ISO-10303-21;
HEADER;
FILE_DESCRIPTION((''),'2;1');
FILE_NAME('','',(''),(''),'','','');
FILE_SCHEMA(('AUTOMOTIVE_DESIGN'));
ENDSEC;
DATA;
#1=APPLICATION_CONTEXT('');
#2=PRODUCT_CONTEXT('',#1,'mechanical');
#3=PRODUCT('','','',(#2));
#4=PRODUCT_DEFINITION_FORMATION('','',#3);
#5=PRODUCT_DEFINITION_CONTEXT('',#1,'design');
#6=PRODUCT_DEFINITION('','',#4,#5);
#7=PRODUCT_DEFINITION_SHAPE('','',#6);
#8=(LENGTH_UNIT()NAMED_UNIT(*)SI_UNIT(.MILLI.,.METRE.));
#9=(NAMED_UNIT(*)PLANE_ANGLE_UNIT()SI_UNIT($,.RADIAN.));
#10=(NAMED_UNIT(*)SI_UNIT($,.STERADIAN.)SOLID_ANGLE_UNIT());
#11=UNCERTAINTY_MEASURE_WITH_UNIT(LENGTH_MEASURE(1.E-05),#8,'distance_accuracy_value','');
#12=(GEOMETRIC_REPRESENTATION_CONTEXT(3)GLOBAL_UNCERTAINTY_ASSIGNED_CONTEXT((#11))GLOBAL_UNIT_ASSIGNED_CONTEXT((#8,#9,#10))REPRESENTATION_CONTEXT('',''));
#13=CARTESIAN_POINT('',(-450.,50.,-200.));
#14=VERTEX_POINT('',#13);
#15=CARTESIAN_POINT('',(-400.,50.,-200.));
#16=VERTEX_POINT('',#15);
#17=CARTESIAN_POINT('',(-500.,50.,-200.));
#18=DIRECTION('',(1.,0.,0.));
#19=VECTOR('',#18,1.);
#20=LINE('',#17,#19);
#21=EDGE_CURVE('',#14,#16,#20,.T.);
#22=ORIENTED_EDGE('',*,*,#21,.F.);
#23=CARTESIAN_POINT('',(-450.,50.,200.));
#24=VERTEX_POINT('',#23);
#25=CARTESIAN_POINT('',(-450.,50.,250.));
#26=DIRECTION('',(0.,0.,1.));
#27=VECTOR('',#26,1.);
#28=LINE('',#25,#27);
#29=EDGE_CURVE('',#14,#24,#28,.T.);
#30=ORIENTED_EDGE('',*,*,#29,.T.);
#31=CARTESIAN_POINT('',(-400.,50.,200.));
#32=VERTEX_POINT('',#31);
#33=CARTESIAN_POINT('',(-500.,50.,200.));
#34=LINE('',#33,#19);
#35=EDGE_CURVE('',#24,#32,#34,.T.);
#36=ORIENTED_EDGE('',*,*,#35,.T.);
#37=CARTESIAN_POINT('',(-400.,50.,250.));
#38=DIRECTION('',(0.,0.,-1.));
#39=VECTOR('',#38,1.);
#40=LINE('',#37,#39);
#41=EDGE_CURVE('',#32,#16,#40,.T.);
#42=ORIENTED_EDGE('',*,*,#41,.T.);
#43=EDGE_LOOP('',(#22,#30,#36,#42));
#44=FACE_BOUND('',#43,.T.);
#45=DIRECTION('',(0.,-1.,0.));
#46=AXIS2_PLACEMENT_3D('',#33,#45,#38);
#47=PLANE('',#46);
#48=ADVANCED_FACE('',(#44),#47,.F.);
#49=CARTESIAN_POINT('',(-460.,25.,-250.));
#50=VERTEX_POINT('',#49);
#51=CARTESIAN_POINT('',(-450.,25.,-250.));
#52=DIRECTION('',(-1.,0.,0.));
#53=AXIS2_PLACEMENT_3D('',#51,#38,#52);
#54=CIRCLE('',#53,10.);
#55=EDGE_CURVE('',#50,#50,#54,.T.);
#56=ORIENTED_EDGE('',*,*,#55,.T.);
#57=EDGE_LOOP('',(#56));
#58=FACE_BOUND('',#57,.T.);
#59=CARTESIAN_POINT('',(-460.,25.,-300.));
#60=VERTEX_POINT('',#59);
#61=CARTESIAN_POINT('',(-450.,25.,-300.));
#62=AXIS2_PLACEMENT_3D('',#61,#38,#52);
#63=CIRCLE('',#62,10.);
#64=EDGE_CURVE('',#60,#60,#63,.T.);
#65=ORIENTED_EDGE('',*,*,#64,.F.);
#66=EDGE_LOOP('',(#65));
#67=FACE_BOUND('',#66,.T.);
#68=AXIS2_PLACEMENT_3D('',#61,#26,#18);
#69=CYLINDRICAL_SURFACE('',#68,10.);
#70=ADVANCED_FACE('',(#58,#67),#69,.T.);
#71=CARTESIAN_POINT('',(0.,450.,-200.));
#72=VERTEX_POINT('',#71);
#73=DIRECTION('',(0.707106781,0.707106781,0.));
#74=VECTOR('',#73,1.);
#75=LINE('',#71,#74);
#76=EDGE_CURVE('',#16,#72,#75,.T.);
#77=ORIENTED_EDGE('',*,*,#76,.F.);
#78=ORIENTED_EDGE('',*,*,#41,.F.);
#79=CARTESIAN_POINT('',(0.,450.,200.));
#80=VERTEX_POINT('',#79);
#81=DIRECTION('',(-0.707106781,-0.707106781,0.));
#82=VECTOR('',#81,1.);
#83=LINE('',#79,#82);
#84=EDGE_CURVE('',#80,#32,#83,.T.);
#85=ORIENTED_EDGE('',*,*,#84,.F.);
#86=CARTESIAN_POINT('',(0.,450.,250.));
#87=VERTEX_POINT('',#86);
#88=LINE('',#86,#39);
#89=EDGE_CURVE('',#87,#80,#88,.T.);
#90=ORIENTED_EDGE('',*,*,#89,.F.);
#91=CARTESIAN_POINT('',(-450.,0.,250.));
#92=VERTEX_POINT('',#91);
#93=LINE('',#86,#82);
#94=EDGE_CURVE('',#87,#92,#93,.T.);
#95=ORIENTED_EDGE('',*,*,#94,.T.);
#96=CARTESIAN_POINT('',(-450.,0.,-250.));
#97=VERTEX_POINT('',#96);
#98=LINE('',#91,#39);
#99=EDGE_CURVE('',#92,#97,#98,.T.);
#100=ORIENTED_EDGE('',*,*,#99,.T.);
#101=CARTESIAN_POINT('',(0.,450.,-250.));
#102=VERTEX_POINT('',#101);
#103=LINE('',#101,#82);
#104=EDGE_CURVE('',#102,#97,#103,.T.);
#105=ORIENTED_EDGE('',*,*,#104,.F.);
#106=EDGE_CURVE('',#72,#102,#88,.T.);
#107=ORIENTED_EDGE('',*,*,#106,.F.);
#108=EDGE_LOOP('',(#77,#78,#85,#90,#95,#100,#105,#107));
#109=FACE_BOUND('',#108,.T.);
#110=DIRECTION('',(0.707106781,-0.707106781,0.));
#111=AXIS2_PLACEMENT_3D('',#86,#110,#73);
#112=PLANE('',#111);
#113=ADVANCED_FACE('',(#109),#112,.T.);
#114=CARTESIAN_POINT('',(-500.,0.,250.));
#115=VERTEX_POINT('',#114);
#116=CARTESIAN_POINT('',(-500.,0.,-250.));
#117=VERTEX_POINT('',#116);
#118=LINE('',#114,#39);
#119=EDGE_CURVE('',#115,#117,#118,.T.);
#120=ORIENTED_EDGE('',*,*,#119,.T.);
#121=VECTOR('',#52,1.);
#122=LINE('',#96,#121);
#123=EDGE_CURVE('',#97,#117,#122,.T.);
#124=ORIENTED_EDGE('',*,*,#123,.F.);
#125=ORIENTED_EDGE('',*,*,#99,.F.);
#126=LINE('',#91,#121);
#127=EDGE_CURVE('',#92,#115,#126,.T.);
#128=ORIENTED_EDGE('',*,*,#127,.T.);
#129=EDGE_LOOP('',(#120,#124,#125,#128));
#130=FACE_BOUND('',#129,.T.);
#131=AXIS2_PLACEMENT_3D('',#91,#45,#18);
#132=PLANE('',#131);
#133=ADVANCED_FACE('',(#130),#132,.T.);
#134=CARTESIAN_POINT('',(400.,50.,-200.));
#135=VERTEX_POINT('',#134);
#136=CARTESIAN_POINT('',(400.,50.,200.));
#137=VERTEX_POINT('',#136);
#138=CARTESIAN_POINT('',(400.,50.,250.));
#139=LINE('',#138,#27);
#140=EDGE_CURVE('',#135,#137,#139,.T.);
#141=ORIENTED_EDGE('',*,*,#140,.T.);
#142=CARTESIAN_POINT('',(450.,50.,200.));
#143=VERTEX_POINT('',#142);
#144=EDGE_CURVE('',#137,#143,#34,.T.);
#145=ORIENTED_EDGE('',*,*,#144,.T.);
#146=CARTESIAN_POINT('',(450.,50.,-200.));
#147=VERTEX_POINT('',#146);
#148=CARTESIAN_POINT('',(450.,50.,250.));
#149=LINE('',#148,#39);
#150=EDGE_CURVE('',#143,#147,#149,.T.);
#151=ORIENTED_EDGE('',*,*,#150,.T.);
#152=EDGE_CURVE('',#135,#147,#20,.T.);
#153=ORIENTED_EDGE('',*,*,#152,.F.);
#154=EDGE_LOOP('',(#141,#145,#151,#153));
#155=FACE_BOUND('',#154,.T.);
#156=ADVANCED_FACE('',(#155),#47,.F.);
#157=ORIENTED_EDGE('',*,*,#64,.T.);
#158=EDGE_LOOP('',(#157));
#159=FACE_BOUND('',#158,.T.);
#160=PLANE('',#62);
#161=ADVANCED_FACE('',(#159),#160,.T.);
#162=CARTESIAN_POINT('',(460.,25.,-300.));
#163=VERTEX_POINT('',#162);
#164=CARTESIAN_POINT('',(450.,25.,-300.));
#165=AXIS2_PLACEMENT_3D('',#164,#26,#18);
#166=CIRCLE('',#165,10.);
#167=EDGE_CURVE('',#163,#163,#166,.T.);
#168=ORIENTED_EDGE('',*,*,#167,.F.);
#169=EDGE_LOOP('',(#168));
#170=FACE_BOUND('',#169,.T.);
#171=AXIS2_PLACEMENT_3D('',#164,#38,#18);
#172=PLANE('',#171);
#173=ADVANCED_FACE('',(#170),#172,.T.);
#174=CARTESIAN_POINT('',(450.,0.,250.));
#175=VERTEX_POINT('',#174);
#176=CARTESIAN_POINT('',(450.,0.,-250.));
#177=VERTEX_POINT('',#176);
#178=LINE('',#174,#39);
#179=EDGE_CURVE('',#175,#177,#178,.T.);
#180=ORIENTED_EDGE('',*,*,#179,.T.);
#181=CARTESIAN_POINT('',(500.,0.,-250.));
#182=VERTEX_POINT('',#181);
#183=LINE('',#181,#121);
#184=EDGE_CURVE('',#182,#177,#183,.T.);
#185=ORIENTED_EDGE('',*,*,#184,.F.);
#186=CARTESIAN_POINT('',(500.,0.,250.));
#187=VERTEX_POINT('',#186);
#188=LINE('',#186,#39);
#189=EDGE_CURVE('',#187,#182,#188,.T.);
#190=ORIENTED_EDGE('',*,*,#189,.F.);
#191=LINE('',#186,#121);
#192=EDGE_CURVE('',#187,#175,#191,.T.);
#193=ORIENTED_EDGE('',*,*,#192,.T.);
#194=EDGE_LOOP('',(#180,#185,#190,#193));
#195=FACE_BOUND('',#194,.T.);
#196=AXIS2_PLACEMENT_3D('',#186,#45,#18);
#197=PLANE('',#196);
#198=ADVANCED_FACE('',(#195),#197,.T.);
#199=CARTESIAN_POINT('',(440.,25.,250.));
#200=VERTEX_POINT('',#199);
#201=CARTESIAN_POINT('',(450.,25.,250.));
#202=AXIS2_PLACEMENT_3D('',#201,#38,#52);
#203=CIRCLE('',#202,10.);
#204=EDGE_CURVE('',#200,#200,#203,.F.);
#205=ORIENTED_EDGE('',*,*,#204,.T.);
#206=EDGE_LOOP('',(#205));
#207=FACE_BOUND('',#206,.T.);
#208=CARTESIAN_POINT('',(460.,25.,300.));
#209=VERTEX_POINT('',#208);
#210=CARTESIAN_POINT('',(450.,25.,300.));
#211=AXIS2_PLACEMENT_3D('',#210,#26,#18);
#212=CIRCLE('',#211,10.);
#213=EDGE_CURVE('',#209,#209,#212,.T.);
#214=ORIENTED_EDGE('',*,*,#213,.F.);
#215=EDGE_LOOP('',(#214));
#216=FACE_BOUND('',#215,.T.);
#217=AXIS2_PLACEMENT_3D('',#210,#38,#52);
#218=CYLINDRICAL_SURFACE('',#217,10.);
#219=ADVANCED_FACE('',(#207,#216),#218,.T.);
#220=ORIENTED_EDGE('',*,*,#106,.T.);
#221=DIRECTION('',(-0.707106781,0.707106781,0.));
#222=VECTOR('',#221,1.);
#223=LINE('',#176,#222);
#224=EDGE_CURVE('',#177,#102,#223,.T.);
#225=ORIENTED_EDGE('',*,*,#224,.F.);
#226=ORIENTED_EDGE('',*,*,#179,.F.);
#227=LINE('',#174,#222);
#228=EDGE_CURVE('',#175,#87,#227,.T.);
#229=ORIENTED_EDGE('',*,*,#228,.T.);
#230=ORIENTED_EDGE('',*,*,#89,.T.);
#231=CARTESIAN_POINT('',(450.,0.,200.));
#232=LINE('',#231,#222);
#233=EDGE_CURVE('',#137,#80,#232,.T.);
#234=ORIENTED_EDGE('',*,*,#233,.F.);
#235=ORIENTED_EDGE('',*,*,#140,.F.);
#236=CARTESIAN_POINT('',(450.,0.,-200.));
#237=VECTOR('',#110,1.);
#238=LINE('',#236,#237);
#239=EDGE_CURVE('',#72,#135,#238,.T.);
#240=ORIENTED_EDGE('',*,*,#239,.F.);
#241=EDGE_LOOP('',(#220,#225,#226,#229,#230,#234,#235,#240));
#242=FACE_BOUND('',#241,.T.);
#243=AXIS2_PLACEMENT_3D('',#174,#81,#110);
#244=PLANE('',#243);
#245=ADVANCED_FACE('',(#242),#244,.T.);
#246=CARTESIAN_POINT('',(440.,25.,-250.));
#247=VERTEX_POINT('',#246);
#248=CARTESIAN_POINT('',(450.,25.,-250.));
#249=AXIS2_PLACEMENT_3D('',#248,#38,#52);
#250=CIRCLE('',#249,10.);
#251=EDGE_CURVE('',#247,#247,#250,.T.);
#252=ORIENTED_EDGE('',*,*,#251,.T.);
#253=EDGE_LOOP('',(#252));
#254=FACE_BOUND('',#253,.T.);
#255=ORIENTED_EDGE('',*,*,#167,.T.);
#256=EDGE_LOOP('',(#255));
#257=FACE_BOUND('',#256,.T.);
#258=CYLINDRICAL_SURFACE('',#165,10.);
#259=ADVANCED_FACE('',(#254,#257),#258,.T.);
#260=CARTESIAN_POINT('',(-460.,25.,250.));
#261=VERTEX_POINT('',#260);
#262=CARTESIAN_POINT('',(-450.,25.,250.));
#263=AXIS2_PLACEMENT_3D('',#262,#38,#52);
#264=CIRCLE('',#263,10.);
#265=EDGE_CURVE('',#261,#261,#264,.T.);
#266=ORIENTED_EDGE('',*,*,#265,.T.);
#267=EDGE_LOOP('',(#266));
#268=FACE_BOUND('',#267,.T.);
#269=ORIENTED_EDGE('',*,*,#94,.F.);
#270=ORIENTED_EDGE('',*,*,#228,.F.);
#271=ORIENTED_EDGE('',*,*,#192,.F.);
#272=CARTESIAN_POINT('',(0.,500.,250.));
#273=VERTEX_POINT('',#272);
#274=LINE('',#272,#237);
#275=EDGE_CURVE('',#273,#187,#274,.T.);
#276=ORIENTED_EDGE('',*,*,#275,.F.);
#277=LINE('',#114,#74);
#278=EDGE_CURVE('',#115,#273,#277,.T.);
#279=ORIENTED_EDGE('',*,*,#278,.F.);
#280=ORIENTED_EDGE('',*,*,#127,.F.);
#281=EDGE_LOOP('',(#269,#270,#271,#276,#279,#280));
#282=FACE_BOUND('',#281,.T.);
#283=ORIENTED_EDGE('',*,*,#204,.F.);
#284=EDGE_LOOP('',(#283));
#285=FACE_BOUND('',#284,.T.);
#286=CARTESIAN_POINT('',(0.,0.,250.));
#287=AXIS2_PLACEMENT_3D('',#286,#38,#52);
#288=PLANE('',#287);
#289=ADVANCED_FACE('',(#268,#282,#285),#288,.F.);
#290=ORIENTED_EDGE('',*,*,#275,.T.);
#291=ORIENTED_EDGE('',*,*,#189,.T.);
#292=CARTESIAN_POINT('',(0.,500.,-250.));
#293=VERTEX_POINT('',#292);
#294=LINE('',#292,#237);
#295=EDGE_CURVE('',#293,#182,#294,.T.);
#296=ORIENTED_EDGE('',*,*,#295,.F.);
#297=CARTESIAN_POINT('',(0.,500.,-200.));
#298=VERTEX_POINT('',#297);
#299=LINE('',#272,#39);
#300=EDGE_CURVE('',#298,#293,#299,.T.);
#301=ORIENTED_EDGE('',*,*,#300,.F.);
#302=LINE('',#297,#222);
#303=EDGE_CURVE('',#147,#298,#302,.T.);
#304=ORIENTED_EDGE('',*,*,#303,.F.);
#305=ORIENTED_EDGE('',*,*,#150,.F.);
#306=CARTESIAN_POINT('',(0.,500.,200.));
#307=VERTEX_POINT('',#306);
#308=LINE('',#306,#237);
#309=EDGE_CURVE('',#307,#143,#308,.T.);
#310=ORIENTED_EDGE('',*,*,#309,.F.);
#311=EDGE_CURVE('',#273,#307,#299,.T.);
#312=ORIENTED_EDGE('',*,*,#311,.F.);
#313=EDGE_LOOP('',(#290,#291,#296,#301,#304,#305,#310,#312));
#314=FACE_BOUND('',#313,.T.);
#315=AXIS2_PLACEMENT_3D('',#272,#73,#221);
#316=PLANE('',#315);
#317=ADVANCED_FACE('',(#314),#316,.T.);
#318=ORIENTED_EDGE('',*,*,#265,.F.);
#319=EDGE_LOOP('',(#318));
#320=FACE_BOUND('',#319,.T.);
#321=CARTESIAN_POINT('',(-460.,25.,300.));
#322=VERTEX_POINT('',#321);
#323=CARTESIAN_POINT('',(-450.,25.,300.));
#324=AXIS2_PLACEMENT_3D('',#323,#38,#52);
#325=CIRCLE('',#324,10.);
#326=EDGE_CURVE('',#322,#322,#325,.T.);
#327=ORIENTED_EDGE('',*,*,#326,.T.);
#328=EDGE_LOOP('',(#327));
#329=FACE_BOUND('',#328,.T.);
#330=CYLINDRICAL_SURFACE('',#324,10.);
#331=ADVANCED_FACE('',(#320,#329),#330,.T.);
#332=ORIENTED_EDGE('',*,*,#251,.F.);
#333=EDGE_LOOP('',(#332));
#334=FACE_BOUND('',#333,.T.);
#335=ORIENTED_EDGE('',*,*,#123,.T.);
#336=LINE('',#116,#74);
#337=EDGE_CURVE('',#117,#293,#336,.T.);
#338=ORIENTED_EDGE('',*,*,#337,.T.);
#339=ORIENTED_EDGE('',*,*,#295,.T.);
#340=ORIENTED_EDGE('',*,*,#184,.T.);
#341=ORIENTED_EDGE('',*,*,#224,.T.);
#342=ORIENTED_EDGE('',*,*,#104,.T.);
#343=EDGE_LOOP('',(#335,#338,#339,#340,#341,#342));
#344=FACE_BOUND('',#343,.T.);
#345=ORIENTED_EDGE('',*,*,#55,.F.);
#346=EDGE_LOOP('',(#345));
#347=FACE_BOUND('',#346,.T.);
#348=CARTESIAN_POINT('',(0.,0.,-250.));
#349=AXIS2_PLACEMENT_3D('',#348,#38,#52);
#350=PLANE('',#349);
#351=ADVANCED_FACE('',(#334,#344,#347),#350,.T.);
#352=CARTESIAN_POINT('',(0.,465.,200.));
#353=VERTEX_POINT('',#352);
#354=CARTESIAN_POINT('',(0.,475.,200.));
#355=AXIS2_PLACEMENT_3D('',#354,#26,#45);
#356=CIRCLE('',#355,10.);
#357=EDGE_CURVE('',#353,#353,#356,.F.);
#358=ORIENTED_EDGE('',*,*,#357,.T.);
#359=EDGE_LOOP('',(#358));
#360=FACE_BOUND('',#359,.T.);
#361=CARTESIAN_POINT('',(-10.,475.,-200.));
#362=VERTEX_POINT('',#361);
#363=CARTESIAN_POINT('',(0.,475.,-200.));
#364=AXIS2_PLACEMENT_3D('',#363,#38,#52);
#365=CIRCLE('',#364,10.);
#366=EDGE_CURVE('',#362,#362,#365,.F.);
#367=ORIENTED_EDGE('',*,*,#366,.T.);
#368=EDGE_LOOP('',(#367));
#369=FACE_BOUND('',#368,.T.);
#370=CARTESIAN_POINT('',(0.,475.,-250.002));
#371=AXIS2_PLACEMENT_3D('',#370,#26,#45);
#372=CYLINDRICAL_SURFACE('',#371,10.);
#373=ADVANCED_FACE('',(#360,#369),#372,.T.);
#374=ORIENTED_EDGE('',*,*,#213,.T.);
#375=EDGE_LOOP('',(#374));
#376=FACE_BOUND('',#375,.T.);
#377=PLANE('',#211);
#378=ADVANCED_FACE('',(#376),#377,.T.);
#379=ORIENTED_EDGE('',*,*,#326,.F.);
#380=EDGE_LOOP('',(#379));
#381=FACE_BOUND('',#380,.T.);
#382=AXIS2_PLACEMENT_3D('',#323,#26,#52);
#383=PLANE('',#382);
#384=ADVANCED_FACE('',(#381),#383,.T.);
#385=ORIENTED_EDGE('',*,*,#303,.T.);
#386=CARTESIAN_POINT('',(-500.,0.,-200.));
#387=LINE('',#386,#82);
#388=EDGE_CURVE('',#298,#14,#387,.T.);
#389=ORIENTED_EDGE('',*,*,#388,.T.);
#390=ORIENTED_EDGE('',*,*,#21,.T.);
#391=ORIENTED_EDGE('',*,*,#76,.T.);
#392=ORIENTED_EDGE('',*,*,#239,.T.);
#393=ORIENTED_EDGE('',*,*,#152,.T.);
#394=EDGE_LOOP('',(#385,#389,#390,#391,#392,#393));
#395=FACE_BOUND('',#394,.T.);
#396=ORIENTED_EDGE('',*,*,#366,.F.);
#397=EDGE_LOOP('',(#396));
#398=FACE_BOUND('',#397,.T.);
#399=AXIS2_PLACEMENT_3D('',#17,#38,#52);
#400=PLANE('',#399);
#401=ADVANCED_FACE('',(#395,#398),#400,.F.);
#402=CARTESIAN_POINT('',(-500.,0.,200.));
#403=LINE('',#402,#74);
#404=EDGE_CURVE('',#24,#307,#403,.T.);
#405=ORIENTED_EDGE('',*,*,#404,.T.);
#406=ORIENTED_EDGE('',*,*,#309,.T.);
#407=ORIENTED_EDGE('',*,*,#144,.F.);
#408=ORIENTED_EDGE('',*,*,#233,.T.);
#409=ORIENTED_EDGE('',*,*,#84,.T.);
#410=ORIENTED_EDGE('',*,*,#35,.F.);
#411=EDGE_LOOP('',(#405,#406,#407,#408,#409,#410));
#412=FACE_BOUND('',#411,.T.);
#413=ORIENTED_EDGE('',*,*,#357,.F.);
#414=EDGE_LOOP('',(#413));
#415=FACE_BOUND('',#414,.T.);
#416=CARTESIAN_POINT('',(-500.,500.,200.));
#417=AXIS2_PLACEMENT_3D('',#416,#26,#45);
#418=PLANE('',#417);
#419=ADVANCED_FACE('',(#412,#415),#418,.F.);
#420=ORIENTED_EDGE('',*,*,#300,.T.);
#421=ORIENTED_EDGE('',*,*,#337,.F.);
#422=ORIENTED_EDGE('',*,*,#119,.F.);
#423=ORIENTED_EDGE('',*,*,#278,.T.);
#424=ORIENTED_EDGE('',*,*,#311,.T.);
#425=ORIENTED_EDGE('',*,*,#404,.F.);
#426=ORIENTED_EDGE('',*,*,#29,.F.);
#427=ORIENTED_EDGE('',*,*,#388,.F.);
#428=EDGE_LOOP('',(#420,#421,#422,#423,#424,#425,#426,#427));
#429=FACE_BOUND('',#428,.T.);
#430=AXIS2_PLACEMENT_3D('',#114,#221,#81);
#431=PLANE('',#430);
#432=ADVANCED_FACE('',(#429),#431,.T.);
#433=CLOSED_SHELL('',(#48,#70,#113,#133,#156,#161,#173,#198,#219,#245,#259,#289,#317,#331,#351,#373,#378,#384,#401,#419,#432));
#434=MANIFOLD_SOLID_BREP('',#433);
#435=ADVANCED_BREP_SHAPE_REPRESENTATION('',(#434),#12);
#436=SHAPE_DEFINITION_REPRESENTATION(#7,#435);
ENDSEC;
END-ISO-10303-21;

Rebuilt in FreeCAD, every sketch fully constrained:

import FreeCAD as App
import Part
import Sketcher
from FreeCAD import Vector
Q = App.Units.Quantity

doc = App.newDocument("Part")
params = doc.addObject("Spreadsheet::Sheet", "Params")
for row, (alias, value) in enumerate([
    ("sketch1_width", "50 mm"),
    ("pad1_length", "500 mm"),
    ("sketch2_width", "450 mm"),
    ("sketch2_height", "400 mm"),
    ("sketch3_diameter", "20 mm"),
    ("sketch4_diameter", "20 mm"),
    ("pad3_length", "50 mm"),
    ("sketch5_diameter", "20 mm"),
    ("pad4_length", "50 mm"),
], start=1):
    params.set(f"A{row}", alias)
    params.set(f"B{row}", "=" + value)
    params.setAlias(f"B{row}", alias)

body = doc.addObject("PartDesign::Body", "Body")

sketch1 = body.newObject("Sketcher::SketchObject", "Sketch")
sketch1.AttachmentSupport = (doc.getObject("XY_Plane"), [""])
sketch1.MapMode = "FlatFace"
sketch1.addGeometry(Part.LineSegment(Vector(0, 500, 0), Vector(-500, 0, 0)), False)
sketch1.addGeometry(Part.LineSegment(Vector(-500, 0, 0), Vector(-450, 0, 0)), False)
sketch1.addGeometry(Part.LineSegment(Vector(-450, 0, 0), Vector(0, 450, 0)), False)
sketch1.addGeometry(Part.LineSegment(Vector(0, 450, 0), Vector(450, 0, 0)), False)
sketch1.addGeometry(Part.LineSegment(Vector(450, 0, 0), Vector(500, 0, 0)), False)
sketch1.addGeometry(Part.LineSegment(Vector(500, 0, 0), Vector(0, 500, 0)), False)
sketch1.addConstraint(Sketcher.Constraint("Coincident", 0, 2, 1, 1))
sketch1.addConstraint(Sketcher.Constraint("Coincident", 1, 2, 2, 1))
sketch1.addConstraint(Sketcher.Constraint("Coincident", 2, 2, 3, 1))
sketch1.addConstraint(Sketcher.Constraint("Coincident", 3, 2, 4, 1))
sketch1.addConstraint(Sketcher.Constraint("Coincident", 4, 2, 5, 1))
sketch1.addConstraint(Sketcher.Constraint("Coincident", 5, 2, 0, 1))
sketch1.addConstraint(Sketcher.Constraint("Horizontal", 1))
sketch1.addConstraint(Sketcher.Constraint("Horizontal", 4))
sketch1.addConstraint(Sketcher.Constraint("Symmetric", 1, 2, 3, 2, -1, 1))
sketch1.addConstraint(Sketcher.Constraint("Symmetric", 0, 2, 4, 2, -2))
sketch1.addConstraint(Sketcher.Constraint("PointOnObject", 2, 2, -2))
sketch1.addConstraint(Sketcher.Constraint("PointOnObject", 5, 2, -2))
sketch1.addConstraint(Sketcher.Constraint("Parallel", 0, 2))
sketch1.addConstraint(Sketcher.Constraint("Perpendicular", 2, 3))
sketch1.addConstraint(Sketcher.Constraint("DistanceX", 1, 1, 1, 2, Q("50 mm")))
sketch1.addConstraint(Sketcher.Constraint("DistanceX", 0, 2, -1, 1, Q("500 mm")))
sketch1.setExpression("Constraints[14]", "Params.sketch1_width")
pad1 = body.newObject("PartDesign::Pad", "Pad")
pad1.Profile = sketch1
pad1.setExpression("Length", "Params.pad1_length")
pad1.Midplane = True

sketch2 = body.newObject("Sketcher::SketchObject", "Sketch001")
sketch2.AttachmentSupport = (doc.getObject("YZ_Plane"), [""])
sketch2.MapMode = "FlatFace"
sketch2.addGeometry(Part.LineSegment(Vector(500, 200, 0), Vector(50, 200, 0)), False)
sketch2.addGeometry(Part.LineSegment(Vector(50, 200, 0), Vector(50, -200, 0)), False)
sketch2.addGeometry(Part.LineSegment(Vector(50, -200, 0), Vector(500, -200, 0)), False)
sketch2.addGeometry(Part.LineSegment(Vector(500, -200, 0), Vector(500, 200, 0)), False)
sketch2.addConstraint(Sketcher.Constraint("Coincident", 0, 2, 1, 1))
sketch2.addConstraint(Sketcher.Constraint("Coincident", 1, 2, 2, 1))
sketch2.addConstraint(Sketcher.Constraint("Coincident", 2, 2, 3, 1))
sketch2.addConstraint(Sketcher.Constraint("Coincident", 3, 2, 0, 1))
sketch2.addConstraint(Sketcher.Constraint("Horizontal", 0))
sketch2.addConstraint(Sketcher.Constraint("Vertical", 1))
sketch2.addConstraint(Sketcher.Constraint("Horizontal", 2))
sketch2.addConstraint(Sketcher.Constraint("Vertical", 3))
sketch2.addConstraint(Sketcher.Constraint("DistanceX", 0, 2, 0, 1, Q("450 mm")))
sketch2.addConstraint(Sketcher.Constraint("DistanceY", 1, 2, 1, 1, Q("400 mm")))
sketch2.addConstraint(Sketcher.Constraint("DistanceX", -1, 1, 0, 2, Q("50 mm")))
sketch2.addConstraint(Sketcher.Constraint("DistanceY", -1, 1, 0, 2, Q("200 mm")))
sketch2.setExpression("Constraints[8]", "Params.sketch2_width")
sketch2.setExpression("Constraints[9]", "Params.sketch2_height")
pocket1 = body.newObject("PartDesign::Pocket", "Pocket")
pocket1.Profile = sketch2
pocket1.Type = "ThroughAll"
pocket1.Midplane = True

sketch3 = body.newObject("Sketcher::SketchObject", "Sketch002")
sketch3.AttachmentSupport = (doc.getObject("XY_Plane"), [""])
sketch3.MapMode = "FlatFace"
sketch3.AttachmentOffset = App.Placement(Vector(0, 0, 200), App.Rotation())
sketch3.addGeometry(Part.Circle(Vector(0, 475, 0), Vector(0, 0, 1), 10), False)
sketch3.addConstraint(Sketcher.Constraint("PointOnObject", 0, 3, -2))
sketch3.addConstraint(Sketcher.Constraint("Diameter", 0, Q("20 mm")))
sketch3.addConstraint(Sketcher.Constraint("DistanceY", -1, 1, 0, 3, Q("475 mm")))
sketch3.setExpression("Constraints[1]", "Params.sketch3_diameter")
pad2 = body.newObject("PartDesign::Pad", "Pad001")
pad2.Profile = sketch3
pad2.Type = "UpToFirst"
pad2.Reversed = True

sketch4 = body.newObject("Sketcher::SketchObject", "Sketch003")
sketch4.AttachmentSupport = (doc.getObject("XY_Plane"), [""])
sketch4.MapMode = "FlatFace"
sketch4.AttachmentOffset = App.Placement(Vector(0, 0, 250), App.Rotation())
sketch4.addGeometry(Part.Circle(Vector(450, 25, 0), Vector(0, 0, 1), 10), False)
sketch4.addConstraint(Sketcher.Constraint("Diameter", 0, Q("20 mm")))
sketch4.addConstraint(Sketcher.Constraint("DistanceX", -1, 1, 0, 3, Q("450 mm")))
sketch4.addConstraint(Sketcher.Constraint("DistanceY", -1, 1, 0, 3, Q("25 mm")))
sketch4.setExpression("Constraints[0]", "Params.sketch4_diameter")
pad3 = body.newObject("PartDesign::Pad", "Pad002")
pad3.Profile = sketch4
pad3.setExpression("Length", "Params.pad3_length")
doc.recompute()

mirrored = body.newObject("PartDesign::Mirrored", "Mirrored")
mirrored.Originals = [pad3]
mirrored.MirrorPlane = (doc.getObject("XY_Plane"), [""])
body.Tip = mirrored
doc.recompute()

mirrored2 = body.newObject("PartDesign::Mirrored", "Mirrored001")
mirrored2.Originals = [pad3]
mirrored2.MirrorPlane = (doc.getObject("YZ_Plane"), [""])
body.Tip = mirrored2

sketch5 = body.newObject("Sketcher::SketchObject", "Sketch004")
sketch5.AttachmentSupport = (doc.getObject("XY_Plane"), [""])
sketch5.MapMode = "FlatFace"
sketch5.AttachmentOffset = App.Placement(Vector(0, 0, -250), App.Rotation())
sketch5.addGeometry(Part.Circle(Vector(-450, 25, 0), Vector(0, 0, 1), 10), False)
sketch5.addConstraint(Sketcher.Constraint("Diameter", 0, Q("20 mm")))
sketch5.addConstraint(Sketcher.Constraint("DistanceX", 0, 3, -1, 1, Q("450 mm")))
sketch5.addConstraint(Sketcher.Constraint("DistanceY", -1, 1, 0, 3, Q("25 mm")))
sketch5.setExpression("Constraints[0]", "Params.sketch5_diameter")
pad4 = body.newObject("PartDesign::Pad", "Pad003")
pad4.Profile = sketch5
pad4.setExpression("Length", "Params.pad4_length")
pad4.Reversed = True

doc.recompute()
